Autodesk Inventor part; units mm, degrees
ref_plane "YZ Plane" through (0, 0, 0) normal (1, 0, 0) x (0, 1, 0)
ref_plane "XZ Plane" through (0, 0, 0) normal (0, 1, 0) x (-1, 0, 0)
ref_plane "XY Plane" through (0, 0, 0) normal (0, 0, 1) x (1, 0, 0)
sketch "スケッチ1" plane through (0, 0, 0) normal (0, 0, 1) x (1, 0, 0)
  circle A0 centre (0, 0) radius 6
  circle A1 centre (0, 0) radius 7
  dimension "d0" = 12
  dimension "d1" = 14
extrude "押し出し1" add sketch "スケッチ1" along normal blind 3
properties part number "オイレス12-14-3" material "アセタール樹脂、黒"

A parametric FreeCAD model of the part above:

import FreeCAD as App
import Part
import Sketcher
from FreeCAD import Vector

doc = App.newDocument("Part")
params = doc.addObject("Spreadsheet::Sheet", "Params")
for row, (alias, value) in enumerate([
    ("sketch1_diameter", "14 mm"),
    ("sketch1_diameter2", "12 mm"),
    ("pad1_length", "3 mm"),
], start=1):
    params.set(f"A{row}", alias)
    params.set(f"B{row}", "=" + value)
    params.setAlias(f"B{row}", alias)

body = doc.addObject("PartDesign::Body", "Body")

# Sketch on XY plane
sketch1 = doc.addObject("Sketcher::SketchObject", "Sketch")
body.addObject(sketch1)
sketch1.AttachmentSupport = (doc.XY_Plane, [""])
sketch1.MapMode = "FlatFace"
sketch1.addGeometry(Part.Circle(Vector(0, 0, 0), Vector(0, 0, 1), 7), False)
sketch1.addGeometry(Part.Circle(Vector(0, 0, 0), Vector(0, 0, 1), 6), False)
sketch1.addConstraint(Sketcher.Constraint("Coincident", 0, 3, -1, 1))
sketch1.addConstraint(Sketcher.Constraint("Coincident", 1, 3, -1, 1))
sketch1.addConstraint(Sketcher.Constraint("Diameter", 0, 14.0))
sketch1.addConstraint(Sketcher.Constraint("Diameter", 1, 12.0))
sketch1.setExpression("Constraints[2]", "Params.sketch1_diameter")
sketch1.setExpression("Constraints[3]", "Params.sketch1_diameter2")
pad1 = doc.addObject("PartDesign::Pad", "Pad")
body.addObject(pad1)
pad1.Profile = sketch1
pad1.setExpression("Length", "Params.pad1_length")

doc.recompute()
